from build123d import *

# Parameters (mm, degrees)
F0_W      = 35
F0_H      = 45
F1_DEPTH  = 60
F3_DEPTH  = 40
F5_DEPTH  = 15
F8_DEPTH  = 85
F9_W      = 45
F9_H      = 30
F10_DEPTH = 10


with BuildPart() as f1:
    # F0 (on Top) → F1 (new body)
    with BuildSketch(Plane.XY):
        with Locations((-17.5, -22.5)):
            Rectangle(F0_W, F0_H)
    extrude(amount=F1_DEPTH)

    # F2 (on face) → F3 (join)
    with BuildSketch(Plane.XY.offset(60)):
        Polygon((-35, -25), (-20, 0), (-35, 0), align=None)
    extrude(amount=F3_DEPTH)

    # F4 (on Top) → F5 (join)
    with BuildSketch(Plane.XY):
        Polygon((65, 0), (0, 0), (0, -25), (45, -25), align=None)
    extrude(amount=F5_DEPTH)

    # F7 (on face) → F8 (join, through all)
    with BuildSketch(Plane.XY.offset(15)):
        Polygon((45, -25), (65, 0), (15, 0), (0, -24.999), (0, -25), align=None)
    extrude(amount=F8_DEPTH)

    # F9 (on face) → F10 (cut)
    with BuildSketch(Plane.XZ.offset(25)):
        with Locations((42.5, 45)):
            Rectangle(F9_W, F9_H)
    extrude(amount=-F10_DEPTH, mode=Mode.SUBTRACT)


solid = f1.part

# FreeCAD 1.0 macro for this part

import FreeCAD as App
import Part
import Sketcher

V = App.Vector

doc = App.newDocument("Part")
body = doc.addObject("PartDesign::Body", "Body")

# Sketch on XY plane
sketch1 = body.newObject("Sketcher::SketchObject", "Sketch")
sketch1.AttachmentSupport = (doc.getObject("XY_Plane"), [""])
sketch1.MapMode = "FlatFace"
sketch1.addGeometry(Part.LineSegment(V(-35, 0, 0), V(-35, -45, 0)), False)
sketch1.addGeometry(Part.LineSegment(V(-35, -45, 0), V(0, -45, 0)), False)
sketch1.addGeometry(Part.LineSegment(V(0, -45, 0), V(0, 0, 0)), False)
sketch1.addGeometry(Part.LineSegment(V(0, 0, 0), V(-35, 0, 0)), False)
sketch1.addConstraint(Sketcher.Constraint("Coincident", 0, 2, 1, 1))
sketch1.addConstraint(Sketcher.Constraint("Coincident", 1, 2, 2, 1))
sketch1.addConstraint(Sketcher.Constraint("Coincident", 2, 2, 3, 1))
sketch1.addConstraint(Sketcher.Constraint("Coincident", 3, 2, 0, 1))
sketch1.addConstraint(Sketcher.Constraint("Vertical", 0))
sketch1.addConstraint(Sketcher.Constraint("Horizontal", 1))
sketch1.addConstraint(Sketcher.Constraint("Vertical", 2))
sketch1.addConstraint(Sketcher.Constraint("Horizontal", 3))
sketch1.addConstraint(Sketcher.Constraint("Coincident", 2, 2, -1, 1))
sketch1.addConstraint(Sketcher.Constraint("DistanceX", 1, 1, 1, 2, 35.0))
sketch1.addConstraint(Sketcher.Constraint("DistanceY", 0, 2, 0, 1, 45.0))
pad1 = body.newObject("PartDesign::Pad", "Pad")
pad1.Profile = sketch1
pad1.Length = 60

# Sketch on XY plane
sketch2 = body.newObject("Sketcher::SketchObject", "Sketch001")
sketch2.AttachmentSupport = (doc.getObject("XY_Plane"), [""])
sketch2.MapMode = "FlatFace"
sketch2.AttachmentOffset = App.Placement(V(0, 0, 60), App.Rotation())
sketch2.addGeometry(Part.LineSegment(V(-35, -25, 0), V(-20, 0, 0)), False)
sketch2.addGeometry(Part.LineSegment(V(-20, 0, 0), V(-35, 0, 0)), False)
sketch2.addGeometry(Part.LineSegment(V(-35, 0, 0), V(-35, -25, 0)), False)
sketch2.addConstraint(Sketcher.Constraint("Coincident", 0, 2, 1, 1))
sketch2.addConstraint(Sketcher.Constraint("Coincident", 1, 2, 2, 1))
sketch2.addConstraint(Sketcher.Constraint("Coincident", 2, 2, 0, 1))
sketch2.addConstraint(Sketcher.Constraint("Horizontal", 1))
sketch2.addConstraint(Sketcher.Constraint("Vertical", 2))
sketch2.addConstraint(Sketcher.Constraint("PointOnObject", 0, 2, -1))
sketch2.addConstraint(Sketcher.Constraint("DistanceX", 1, 2, 1, 1, 15.0))
sketch2.addConstraint(Sketcher.Constraint("DistanceY", 2, 2, 2, 1, 25.0))
sketch2.addConstraint(Sketcher.Constraint("DistanceX", 0, 2, -1, 1, 20.0))
pad2 = body.newObject("PartDesign::Pad", "Pad001")
pad2.Profile = sketch2
pad2.Length = 40

# Sketch on XY plane
sketch3 = body.newObject("Sketcher::SketchObject", "Sketch002")
sketch3.AttachmentSupport = (doc.getObject("XY_Plane"), [""])
sketch3.MapMode = "FlatFace"
sketch3.addGeometry(Part.LineSegment(V(65, 0, 0), V(0, 0, 0)), False)
sketch3.addGeometry(Part.LineSegment(V(0, 0, 0), V(0, -25, 0)), False)
sketch3.addGeometry(Part.LineSegment(V(0, -25, 0), V(45, -25, 0)), False)
sketch3.addGeometry(Part.LineSegment(V(45, -25, 0), V(65, 0, 0)), False)
sketch3.addConstraint(Sketcher.Constraint("Coincident", 0, 2, 1, 1))
sketch3.addConstraint(Sketcher.Constraint("Coincident", 1, 2, 2, 1))
sketch3.addConstraint(Sketcher.Constraint("Coincident", 2, 2, 3, 1))
sketch3.addConstraint(Sketcher.Constraint("Coincident", 3, 2, 0, 1))
sketch3.addConstraint(Sketcher.Constraint("Horizontal", 0))
sketch3.addConstraint(Sketcher.Constraint("Vertical", 1))
sketch3.addConstraint(Sketcher.Constraint("Horizontal", 2))
sketch3.addConstraint(Sketcher.Constraint("Coincident", 0, 2, -1, 1))
sketch3.addConstraint(Sketcher.Constraint("DistanceX", 0, 2, 0, 1, 65.0))
sketch3.addConstraint(Sketcher.Constraint("DistanceX", 2, 1, 2, 2, 45.0))
sketch3.addConstraint(Sketcher.Constraint("DistanceY", 1, 2, 1, 1, 25.0))
pad3 = body.newObject("PartDesign::Pad", "Pad002")
pad3.Profile = sketch3
pad3.Length = 15

# Sketch on XY plane
sketch4 = body.newObject("Sketcher::SketchObject", "Sketch003")
sketch4.AttachmentSupport = (doc.getObject("XY_Plane"), [""])
sketch4.MapMode = "FlatFace"
sketch4.AttachmentOffset = App.Placement(V(0, 0, 15), App.Rotation())
sketch4.addGeometry(Part.LineSegment(V(45, -25, 0), V(65, 0, 0)), False)
sketch4.addGeometry(Part.LineSegment(V(65, 0, 0), V(15, 0, 0)), False)
sketch4.addGeometry(Part.LineSegment(V(15, 0, 0), V(0, -24.999, 0)), False)
sketch4.addGeometry(Part.LineSegment(V(0, -24.999, 0), V(0, -25, 0)), False)
sketch4.addGeometry(Part.LineSegment(V(0, -25, 0), V(45, -25, 0)), False)
sketch4.addConstraint(Sketcher.Constraint("Coincident", 0, 2, 1, 1))
sketch4.addConstraint(Sketcher.Constraint("Coincident", 1, 2, 2, 1))
sketch4.addConstraint(Sketcher.Constraint("Coincident", 2, 2, 3, 1))
sketch4.addConstraint(Sketcher.Constraint("Coincident", 3, 2, 4, 1))
sketch4.addConstraint(Sketcher.Constraint("Coincident", 4, 2, 0, 1))
sketch4.addConstraint(Sketcher.Constraint("Horizontal", 1))
sketch4.addConstraint(Sketcher.Constraint("Vertical", 3))
sketch4.addConstraint(Sketcher.Constraint("Horizontal", 4))
sketch4.addConstraint(Sketcher.Constraint("PointOnObject", 0, 2, -1))
sketch4.addConstraint(Sketcher.Constraint("PointOnObject", 2, 2, -2))
sketch4.addConstraint(Sketcher.Constraint("DistanceX", 1, 2, 1, 1, 50.0))
sketch4.addConstraint(Sketcher.Constraint("DistanceX", 4, 1, 4, 2, 45.0))
sketch4.addConstraint(Sketcher.Constraint("DistanceX", -1, 1, 0, 2, 65.0))
sketch4.addConstraint(Sketcher.Constraint("DistanceY", 3, 2, -1, 1, 25.0))
sketch4.addConstraint(Sketcher.Constraint("DistanceY", 3, 2, 3, 1, 0.001))
pad4 = body.newObject("PartDesign::Pad", "Pad003")
pad4.Profile = sketch4
pad4.Length = 85

# Sketch on XZ plane
sketch5 = body.newObject("Sketcher::SketchObject", "Sketch004")
sketch5.AttachmentSupport = (doc.getObject("XZ_Plane"), [""])
sketch5.MapMode = "FlatFace"
sketch5.AttachmentOffset = App.Placement(V(0, 0, 25), App.Rotation())
sketch5.addGeometry(Part.LineSegment(V(20, 60, 0), V(20, 30, 0)), False)
sketch5.addGeometry(Part.LineSegment(V(20, 30, 0), V(65, 30, 0)), False)
sketch5.addGeometry(Part.LineSegment(V(65, 30, 0), V(65, 60, 0)), False)
sketch5.addGeometry(Part.LineSegment(V(65, 60, 0), V(20, 60, 0)), False)
sketch5.addConstraint(Sketcher.Constraint("Coincident", 0, 2, 1, 1))
sketch5.addConstraint(Sketcher.Constraint("Coincident", 1, 2, 2, 1))
sketch5.addConstraint(Sketcher.Constraint("Coincident", 2, 2, 3, 1))
sketch5.addConstraint(Sketcher.Constraint("Coincident", 3, 2, 0, 1))
sketch5.addConstraint(Sketcher.Constraint("Vertical", 0))
sketch5.addConstraint(Sketcher.Constraint("Horizontal", 1))
sketch5.addConstraint(Sketcher.Constraint("Vertical", 2))
sketch5.addConstraint(Sketcher.Constraint("Horizontal", 3))
sketch5.addConstraint(Sketcher.Constraint("DistanceX", 1, 1, 1, 2, 45.0))
sketch5.addConstraint(Sketcher.Constraint("DistanceY", 0, 2, 0, 1, 30.0))
sketch5.addConstraint(Sketcher.Constraint("DistanceX", -1, 1, 0, 2, 20.0))
sketch5.addConstraint(Sketcher.Constraint("DistanceY", -1, 1, 0, 2, 30.0))
pocket1 = body.newObject("PartDesign::Pocket", "Pocket")
pocket1.Profile = sketch5
pocket1.Length = 10

doc.recompute()
